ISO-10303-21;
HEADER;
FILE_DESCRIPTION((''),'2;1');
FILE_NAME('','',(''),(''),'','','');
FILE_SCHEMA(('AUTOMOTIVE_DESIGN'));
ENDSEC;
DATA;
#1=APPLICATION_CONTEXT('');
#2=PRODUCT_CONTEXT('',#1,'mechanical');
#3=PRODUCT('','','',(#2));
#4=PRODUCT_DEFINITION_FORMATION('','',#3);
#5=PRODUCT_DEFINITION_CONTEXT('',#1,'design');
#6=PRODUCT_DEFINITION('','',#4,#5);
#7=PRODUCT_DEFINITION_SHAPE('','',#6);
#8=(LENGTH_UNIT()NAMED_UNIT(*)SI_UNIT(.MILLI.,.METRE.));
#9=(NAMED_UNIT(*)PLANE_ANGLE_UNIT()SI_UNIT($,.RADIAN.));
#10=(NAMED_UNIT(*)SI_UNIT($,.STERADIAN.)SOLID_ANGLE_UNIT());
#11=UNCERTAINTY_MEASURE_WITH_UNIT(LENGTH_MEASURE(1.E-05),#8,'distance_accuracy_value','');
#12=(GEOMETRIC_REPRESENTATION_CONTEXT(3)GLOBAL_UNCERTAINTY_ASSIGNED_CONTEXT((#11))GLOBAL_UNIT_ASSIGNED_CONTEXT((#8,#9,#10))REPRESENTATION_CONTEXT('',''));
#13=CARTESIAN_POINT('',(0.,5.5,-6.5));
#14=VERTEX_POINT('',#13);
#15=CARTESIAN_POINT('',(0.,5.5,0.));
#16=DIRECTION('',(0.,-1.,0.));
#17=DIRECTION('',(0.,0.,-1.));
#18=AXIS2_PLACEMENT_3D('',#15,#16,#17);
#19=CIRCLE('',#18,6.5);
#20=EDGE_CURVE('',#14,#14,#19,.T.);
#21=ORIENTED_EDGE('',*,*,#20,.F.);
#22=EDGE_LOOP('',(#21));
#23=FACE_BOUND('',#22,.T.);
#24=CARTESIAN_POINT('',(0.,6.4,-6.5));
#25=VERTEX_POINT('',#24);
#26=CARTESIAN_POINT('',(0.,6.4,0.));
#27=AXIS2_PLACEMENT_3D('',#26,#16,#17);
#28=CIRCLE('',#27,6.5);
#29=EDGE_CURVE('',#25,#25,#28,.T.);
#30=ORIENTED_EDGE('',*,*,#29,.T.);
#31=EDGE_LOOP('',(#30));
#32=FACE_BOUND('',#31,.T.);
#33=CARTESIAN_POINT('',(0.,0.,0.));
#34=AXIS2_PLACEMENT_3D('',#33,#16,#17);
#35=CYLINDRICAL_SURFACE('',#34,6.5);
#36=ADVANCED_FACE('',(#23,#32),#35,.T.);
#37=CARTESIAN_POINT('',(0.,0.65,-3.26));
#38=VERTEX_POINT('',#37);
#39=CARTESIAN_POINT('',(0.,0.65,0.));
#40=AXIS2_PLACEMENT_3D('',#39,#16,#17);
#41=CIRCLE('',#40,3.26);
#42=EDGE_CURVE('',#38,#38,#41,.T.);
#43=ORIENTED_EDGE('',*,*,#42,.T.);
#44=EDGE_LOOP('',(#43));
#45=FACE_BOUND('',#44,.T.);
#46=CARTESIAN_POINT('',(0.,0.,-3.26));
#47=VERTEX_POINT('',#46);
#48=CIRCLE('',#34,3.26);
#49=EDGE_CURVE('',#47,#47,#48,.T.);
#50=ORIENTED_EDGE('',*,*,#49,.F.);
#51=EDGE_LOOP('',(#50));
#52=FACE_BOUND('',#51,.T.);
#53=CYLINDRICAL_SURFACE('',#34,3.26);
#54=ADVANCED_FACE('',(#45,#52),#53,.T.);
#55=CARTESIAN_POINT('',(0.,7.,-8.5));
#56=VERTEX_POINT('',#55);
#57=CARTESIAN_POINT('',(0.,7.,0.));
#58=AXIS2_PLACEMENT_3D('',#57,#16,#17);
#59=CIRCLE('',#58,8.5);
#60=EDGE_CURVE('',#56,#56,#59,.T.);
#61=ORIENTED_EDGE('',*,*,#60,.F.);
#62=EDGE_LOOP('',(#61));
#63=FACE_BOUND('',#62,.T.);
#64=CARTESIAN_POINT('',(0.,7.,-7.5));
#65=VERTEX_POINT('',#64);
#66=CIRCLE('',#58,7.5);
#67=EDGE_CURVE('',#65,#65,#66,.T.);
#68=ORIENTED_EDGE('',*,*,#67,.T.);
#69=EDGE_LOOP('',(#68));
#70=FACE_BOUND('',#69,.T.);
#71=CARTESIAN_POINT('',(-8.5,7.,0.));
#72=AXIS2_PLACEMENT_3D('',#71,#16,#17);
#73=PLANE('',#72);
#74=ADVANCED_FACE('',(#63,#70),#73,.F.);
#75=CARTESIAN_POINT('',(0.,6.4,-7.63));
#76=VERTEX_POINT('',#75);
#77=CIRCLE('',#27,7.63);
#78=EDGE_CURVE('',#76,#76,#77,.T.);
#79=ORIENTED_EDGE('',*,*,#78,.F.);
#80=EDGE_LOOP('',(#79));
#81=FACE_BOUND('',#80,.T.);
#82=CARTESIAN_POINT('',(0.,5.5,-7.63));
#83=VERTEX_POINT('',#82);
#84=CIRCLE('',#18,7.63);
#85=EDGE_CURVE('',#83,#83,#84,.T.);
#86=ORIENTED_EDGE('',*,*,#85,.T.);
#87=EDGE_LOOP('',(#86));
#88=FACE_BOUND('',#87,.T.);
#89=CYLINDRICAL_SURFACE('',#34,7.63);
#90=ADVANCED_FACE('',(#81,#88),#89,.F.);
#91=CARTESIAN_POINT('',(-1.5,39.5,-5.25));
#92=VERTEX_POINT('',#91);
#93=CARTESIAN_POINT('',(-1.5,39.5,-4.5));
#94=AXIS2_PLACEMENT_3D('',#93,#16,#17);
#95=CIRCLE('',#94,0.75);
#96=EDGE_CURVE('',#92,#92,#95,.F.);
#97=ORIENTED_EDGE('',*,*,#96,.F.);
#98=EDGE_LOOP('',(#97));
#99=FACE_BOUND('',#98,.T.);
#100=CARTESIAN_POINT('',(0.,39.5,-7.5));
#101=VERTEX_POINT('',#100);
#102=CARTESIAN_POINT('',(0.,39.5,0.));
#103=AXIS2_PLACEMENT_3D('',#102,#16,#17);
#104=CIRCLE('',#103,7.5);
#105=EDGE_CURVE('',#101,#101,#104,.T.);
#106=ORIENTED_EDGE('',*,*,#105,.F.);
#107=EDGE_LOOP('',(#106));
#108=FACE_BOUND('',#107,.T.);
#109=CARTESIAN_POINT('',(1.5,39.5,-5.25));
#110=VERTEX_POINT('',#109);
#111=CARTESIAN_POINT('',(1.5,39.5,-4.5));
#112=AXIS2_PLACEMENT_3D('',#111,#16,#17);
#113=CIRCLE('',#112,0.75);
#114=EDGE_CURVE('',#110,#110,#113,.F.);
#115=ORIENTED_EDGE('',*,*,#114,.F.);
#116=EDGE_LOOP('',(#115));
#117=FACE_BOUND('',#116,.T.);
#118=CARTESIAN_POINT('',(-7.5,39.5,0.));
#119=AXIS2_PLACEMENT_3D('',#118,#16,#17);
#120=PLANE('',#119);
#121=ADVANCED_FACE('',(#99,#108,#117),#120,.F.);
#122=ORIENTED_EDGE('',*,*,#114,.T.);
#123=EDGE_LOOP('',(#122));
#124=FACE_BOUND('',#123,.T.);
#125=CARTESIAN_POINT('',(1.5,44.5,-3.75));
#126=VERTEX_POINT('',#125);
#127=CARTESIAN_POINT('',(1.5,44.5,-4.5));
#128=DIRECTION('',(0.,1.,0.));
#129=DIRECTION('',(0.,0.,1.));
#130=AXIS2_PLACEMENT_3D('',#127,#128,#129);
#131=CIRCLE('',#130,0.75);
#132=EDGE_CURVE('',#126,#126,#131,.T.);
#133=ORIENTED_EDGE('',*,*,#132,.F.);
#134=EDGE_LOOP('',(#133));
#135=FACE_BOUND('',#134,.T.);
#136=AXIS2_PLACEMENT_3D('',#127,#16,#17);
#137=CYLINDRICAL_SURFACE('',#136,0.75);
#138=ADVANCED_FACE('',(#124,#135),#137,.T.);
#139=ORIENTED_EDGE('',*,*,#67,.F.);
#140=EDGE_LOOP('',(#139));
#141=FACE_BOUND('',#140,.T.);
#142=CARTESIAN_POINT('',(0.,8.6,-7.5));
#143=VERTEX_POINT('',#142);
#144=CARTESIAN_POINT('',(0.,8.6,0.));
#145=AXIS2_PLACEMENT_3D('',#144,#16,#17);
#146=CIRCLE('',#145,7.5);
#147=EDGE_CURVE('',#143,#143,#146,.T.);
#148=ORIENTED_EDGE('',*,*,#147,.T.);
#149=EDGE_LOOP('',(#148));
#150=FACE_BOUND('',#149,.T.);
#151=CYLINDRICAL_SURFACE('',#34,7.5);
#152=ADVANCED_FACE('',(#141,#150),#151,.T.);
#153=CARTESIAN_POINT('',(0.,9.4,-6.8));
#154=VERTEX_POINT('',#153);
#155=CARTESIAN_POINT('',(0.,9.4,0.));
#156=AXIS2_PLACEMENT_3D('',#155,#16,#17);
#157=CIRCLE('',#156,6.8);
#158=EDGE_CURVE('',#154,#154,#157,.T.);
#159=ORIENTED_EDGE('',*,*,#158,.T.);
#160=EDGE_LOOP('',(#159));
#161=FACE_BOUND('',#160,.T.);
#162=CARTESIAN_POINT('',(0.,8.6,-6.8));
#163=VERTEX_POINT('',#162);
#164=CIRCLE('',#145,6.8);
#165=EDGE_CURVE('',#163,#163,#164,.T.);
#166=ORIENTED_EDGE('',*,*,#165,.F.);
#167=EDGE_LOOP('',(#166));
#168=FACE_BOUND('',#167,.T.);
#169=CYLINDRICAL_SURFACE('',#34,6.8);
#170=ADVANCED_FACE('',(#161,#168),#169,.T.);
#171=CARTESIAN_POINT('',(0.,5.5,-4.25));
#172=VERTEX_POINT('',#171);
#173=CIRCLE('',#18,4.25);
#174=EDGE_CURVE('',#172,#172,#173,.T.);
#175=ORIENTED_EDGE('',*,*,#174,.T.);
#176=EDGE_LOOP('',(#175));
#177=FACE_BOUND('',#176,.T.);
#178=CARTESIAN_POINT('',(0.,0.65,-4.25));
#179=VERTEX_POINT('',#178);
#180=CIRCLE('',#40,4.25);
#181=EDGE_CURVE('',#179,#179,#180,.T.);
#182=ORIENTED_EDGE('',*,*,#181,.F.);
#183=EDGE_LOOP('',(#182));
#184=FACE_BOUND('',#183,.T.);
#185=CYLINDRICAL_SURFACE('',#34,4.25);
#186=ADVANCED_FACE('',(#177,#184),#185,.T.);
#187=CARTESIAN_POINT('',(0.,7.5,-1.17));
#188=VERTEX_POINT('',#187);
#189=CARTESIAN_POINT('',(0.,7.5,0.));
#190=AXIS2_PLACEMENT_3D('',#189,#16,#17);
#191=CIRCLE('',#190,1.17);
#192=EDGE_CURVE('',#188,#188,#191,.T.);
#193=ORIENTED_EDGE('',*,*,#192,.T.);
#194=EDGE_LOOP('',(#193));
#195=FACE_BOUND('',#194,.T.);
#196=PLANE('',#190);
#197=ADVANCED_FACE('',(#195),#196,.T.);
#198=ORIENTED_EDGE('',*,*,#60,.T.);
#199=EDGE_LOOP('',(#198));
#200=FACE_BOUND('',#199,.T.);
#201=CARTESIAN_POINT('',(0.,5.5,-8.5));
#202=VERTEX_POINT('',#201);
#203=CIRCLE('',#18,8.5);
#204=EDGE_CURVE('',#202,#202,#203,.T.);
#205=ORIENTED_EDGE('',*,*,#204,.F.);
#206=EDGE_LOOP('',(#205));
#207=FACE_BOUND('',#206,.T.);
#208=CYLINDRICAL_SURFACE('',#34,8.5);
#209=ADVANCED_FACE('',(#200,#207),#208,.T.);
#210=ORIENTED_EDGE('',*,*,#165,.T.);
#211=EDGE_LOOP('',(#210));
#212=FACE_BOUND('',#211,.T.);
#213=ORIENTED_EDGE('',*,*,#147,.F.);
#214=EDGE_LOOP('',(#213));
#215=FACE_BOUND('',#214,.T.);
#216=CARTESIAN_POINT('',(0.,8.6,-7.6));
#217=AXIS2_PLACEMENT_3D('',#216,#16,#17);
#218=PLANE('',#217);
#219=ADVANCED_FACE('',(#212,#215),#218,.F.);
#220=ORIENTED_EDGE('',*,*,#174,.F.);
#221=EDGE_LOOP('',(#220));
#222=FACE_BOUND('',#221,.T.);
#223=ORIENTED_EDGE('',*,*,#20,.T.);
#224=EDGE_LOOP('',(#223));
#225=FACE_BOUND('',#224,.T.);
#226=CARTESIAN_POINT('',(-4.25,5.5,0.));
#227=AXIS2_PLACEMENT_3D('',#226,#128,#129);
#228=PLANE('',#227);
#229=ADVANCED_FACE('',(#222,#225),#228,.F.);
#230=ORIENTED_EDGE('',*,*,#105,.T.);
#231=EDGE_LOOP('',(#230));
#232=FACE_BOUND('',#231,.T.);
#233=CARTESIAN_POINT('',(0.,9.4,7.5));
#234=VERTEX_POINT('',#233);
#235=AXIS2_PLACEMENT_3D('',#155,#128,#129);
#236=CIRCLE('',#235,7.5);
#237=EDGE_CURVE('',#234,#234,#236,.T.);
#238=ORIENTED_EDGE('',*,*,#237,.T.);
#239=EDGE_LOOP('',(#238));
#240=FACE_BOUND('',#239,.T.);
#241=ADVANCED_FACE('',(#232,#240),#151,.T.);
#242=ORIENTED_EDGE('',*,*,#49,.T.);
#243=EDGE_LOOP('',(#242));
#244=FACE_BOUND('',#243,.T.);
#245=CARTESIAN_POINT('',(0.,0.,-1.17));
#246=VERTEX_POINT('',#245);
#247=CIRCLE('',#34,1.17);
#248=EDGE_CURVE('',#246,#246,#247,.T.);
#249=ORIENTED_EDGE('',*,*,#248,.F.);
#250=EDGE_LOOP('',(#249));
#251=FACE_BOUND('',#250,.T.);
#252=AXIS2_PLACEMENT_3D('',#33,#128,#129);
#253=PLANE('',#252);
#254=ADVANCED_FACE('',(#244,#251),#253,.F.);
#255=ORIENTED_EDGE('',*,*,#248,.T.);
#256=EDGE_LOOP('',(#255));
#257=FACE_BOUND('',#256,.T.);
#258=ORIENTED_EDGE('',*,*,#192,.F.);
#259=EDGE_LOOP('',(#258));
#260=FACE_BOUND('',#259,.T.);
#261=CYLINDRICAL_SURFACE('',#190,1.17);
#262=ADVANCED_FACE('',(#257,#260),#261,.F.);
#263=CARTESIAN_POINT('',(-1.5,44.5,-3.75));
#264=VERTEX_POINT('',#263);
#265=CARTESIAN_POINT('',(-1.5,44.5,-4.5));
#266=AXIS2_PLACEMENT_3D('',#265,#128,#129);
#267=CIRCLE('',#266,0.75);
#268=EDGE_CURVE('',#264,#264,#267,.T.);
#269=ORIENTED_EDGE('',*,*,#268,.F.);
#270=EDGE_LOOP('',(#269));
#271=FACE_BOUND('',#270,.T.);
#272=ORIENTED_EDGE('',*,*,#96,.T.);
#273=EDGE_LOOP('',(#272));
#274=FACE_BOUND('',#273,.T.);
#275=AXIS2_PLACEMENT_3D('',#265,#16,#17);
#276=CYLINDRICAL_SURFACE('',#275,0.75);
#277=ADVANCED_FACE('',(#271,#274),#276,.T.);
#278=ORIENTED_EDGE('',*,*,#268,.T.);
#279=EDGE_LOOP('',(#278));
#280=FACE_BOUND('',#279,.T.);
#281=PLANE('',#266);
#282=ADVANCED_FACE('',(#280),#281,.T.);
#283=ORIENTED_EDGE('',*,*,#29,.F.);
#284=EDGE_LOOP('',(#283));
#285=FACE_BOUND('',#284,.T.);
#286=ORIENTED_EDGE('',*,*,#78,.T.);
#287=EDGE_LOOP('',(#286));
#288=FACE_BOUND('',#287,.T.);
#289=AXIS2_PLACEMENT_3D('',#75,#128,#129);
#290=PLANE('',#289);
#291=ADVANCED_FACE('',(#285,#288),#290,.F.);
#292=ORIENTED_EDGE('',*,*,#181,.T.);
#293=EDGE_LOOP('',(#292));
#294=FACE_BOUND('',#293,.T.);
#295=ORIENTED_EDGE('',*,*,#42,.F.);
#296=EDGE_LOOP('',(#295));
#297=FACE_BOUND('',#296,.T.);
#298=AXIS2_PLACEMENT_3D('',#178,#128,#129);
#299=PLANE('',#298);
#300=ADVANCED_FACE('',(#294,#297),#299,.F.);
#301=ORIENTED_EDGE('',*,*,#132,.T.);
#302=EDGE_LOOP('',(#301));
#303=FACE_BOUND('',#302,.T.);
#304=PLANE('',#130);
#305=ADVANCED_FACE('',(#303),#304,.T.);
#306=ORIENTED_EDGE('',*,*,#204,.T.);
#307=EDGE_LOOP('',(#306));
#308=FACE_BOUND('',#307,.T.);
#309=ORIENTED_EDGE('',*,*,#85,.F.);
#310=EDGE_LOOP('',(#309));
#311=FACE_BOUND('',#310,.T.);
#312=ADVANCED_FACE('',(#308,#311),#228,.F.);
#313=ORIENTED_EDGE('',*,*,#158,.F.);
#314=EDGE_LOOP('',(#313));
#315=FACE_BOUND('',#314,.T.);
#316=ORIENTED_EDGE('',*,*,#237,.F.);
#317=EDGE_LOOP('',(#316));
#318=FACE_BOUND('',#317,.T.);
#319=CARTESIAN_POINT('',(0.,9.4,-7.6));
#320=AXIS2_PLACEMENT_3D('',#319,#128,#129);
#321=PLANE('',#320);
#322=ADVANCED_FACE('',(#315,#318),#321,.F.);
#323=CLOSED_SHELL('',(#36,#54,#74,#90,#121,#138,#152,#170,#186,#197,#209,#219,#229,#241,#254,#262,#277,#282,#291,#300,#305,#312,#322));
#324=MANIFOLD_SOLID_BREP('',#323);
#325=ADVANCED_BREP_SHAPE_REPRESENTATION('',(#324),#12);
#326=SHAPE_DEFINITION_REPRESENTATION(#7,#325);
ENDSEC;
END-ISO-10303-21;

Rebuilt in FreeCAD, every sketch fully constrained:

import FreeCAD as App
import Part
import Sketcher

V = App.Vector
Q = App.Units.Quantity


def add_polygon(sketch, points):
    """Adds a closed chain of lines whose ends are joined by coincident constraints."""
    first, n = sketch.GeometryCount, len(points)
    for a, b in zip(points, points[1:] + points[:1]):
        sketch.addGeometry(Part.LineSegment(App.Vector(*a, 0), App.Vector(*b, 0)), False)
    for i in range(n):
        sketch.addConstraint(Sketcher.Constraint("Coincident", first + i, 2, first + (i + 1) % n, 1))

doc = App.newDocument("Part")
params = doc.addObject("Spreadsheet::Sheet", "Params")
for row, (alias, value) in enumerate([
    ("sketch1_width", "1 mm"),
    ("sketch1_width2", "7.5 mm"),
    ("sketch1_height", "39.5 mm"),
    ("sketch1_height2", "32.5 mm"),
    ("sketch1_height3", "1.5 mm"),
    ("revolution_angle", "360 deg"),
    ("sketch2_diameter", "1.5 mm"),
    ("pad1_length", "5 mm"),
    ("sketch3_width", "0.65 mm"),
    ("sketch3_height", "0.99 mm"),
    ("groove_angle", "360 deg"),
    ("sketch4_diameter", "2.34 mm"),
    ("pocket1_length", "7.5 mm"),
    ("sketch5_width", "0.9 mm"),
    ("sketch5_height", "1.13 mm"),
    ("groove2_angle", "360 deg"),
    ("sketch6_width", "0.8 mm"),
    ("groove3_angle", "360 deg"),
], start=1):
    params.set(f"A{row}", alias)
    params.set(f"B{row}", "=" + value)
    params.setAlias(f"B{row}", alias)

body = doc.addObject("PartDesign::Body", "Body")

sketch1 = body.newObject("Sketcher::SketchObject", "Sketch")
sketch1.AttachmentSupport = (doc.getObject("XY_Plane"), [""])
sketch1.MapMode = "FlatFace"
add_polygon(sketch1, [(-4.25, 0), (0, 0), (0, 39.5), (-7.5, 39.5), (-7.5, 7), (-8.5, 7), (-8.5, 5.5), (-4.25, 5.5)])
sketch1.addConstraint([
    Sketcher.Constraint("Horizontal", 0),
    Sketcher.Constraint("Vertical", 1),
    Sketcher.Constraint("Horizontal", 2),
    Sketcher.Constraint("Vertical", 3),
    Sketcher.Constraint("Horizontal", 4),
    Sketcher.Constraint("Vertical", 5),
    Sketcher.Constraint("Horizontal", 6),
    Sketcher.Constraint("Vertical", 7),
    Sketcher.Constraint("Coincident", 0, 2, -1, 1),
    Sketcher.Constraint("Equal", 0, 6),
    Sketcher.Constraint("DistanceX", 4, 2, 4, 1, Q("1 mm")),
    Sketcher.Constraint("DistanceX", 2, 2, 2, 1, Q("7.5 mm")),
    Sketcher.Constraint("DistanceY", 1, 1, 1, 2, Q("39.5 mm")),
    Sketcher.Constraint("DistanceY", 3, 2, 3, 1, Q("32.5 mm")),
    Sketcher.Constraint("DistanceY", 5, 2, 5, 1, Q("1.5 mm")),
])
sketch1.setExpression("Constraints[18]", "Params.sketch1_width")
sketch1.setExpression("Constraints[19]", "Params.sketch1_width2")
sketch1.setExpression("Constraints[20]", "Params.sketch1_height")
sketch1.setExpression("Constraints[21]", "Params.sketch1_height2")
sketch1.setExpression("Constraints[22]", "Params.sketch1_height3")
revolution = body.newObject("PartDesign::Revolution", "Revolution")
revolution.Profile = sketch1
revolution.ReferenceAxis = (sketch1, ["V_Axis"])
revolution.setExpression("Angle", "Params.revolution_angle")

sketch2 = body.newObject("Sketcher::SketchObject", "Sketch001")
sketch2.AttachmentSupport = (doc.getObject("XZ_Plane"), [""])
sketch2.MapMode = "FlatFace"
sketch2.AttachmentOffset = App.Placement(V(0, 0, -39.5), App.Rotation())
sketch2.addGeometry([
    Part.Circle(V(1.5, -4.5, 0), V(0, 0, 1), 0.75),
    Part.Circle(V(-1.5, -4.5, 0), V(0, 0, 1), 0.75),
], False)
sketch2.addConstraint([
    Sketcher.Constraint("Equal", 0, 1),
    Sketcher.Constraint("Symmetric", 0, 3, 1, 3, -2),
    Sketcher.Constraint("Diameter", 0, Q("1.5 mm")),
    Sketcher.Constraint("DistanceX", 1, 3, 0, 3, Q("3 mm")),
    Sketcher.Constraint("DistanceY", 0, 3, -1, 1, Q("4.5 mm")),
])
sketch2.setExpression("Constraints[2]", "Params.sketch2_diameter")
pad1 = body.newObject("PartDesign::Pad", "Pad")
pad1.Profile = sketch2
pad1.setExpression("Length", "Params.pad1_length")
pad1.Reversed = True

sketch3 = body.newObject("Sketcher::SketchObject", "Sketch002")
sketch3.AttachmentSupport = (doc.getObject("YZ_Plane"), [""])
sketch3.MapMode = "FlatFace"
add_polygon(sketch3, [(0.65, -3.26), (0, -3.26), (0, -4.25), (0.65, -4.25)])
sketch3.addConstraint([
    Sketcher.Constraint("Horizontal", 0),
    Sketcher.Constraint("Vertical", 1),
    Sketcher.Constraint("Horizontal", 2),
    Sketcher.Constraint("Vertical", 3),
    Sketcher.Constraint("PointOnObject", 0, 2, -2),
    Sketcher.Constraint("DistanceX", 0, 2, 0, 1, Q("0.65 mm")),
    Sketcher.Constraint("DistanceY", 1, 2, 1, 1, Q("0.99 mm")),
    Sketcher.Constraint("DistanceY", 0, 2, -1, 1, Q("3.26 mm")),
])
sketch3.setExpression("Constraints[9]", "Params.sketch3_width")
sketch3.setExpression("Constraints[10]", "Params.sketch3_height")
groove = body.newObject("PartDesign::Groove", "Groove")
groove.Profile = sketch3
groove.ReferenceAxis = (sketch3, ["H_Axis"])
groove.setExpression("Angle", "Params.groove_angle")

sketch4 = body.newObject("Sketcher::SketchObject", "Sketch003")
sketch4.AttachmentSupport = (doc.getObject("XZ_Plane"), [""])
sketch4.MapMode = "FlatFace"
sketch4.addGeometry(Part.Circle(V(0, 0, 0), V(0, 0, 1), 1.17), False)
sketch4.addConstraint([
    Sketcher.Constraint("Coincident", 0, 3, -1, 1),
    Sketcher.Constraint("Diameter", 0, Q("2.34 mm")),
])
sketch4.setExpression("Constraints[1]", "Params.sketch4_diameter")
pocket1 = body.newObject("PartDesign::Pocket", "Pocket")
pocket1.Profile = sketch4
pocket1.setExpression("Length", "Params.pocket1_length")

sketch5 = body.newObject("Sketcher::SketchObject", "Sketch004")
sketch5.AttachmentSupport = (doc.getObject("YZ_Plane"), [""])
sketch5.MapMode = "FlatFace"
add_polygon(sketch5, [(6.4, -6.5), (5.5, -6.5), (5.5, -7.63), (6.4, -7.63)])
sketch5.addConstraint([
    Sketcher.Constraint("Horizontal", 0),
    Sketcher.Constraint("Vertical", 1),
    Sketcher.Constraint("Horizontal", 2),
    Sketcher.Constraint("Vertical", 3),
    Sketcher.Constraint("DistanceX", 0, 2, 0, 1, Q("0.9 mm")),
    Sketcher.Constraint("DistanceY", 1, 2, 1, 1, Q("1.13 mm")),
    Sketcher.Constraint("DistanceX", -1, 1, 0, 2, Q("5.5 mm")),
    Sketcher.Constraint("DistanceY", 0, 2, -1, 1, Q("6.5 mm")),
])
sketch5.setExpression("Constraints[8]", "Params.sketch5_width")
sketch5.setExpression("Constraints[9]", "Params.sketch5_height")
groove2 = body.newObject("PartDesign::Groove", "Groove001")
groove2.Profile = sketch5
groove2.ReferenceAxis = (sketch5, ["H_Axis"])
groove2.setExpression("Angle", "Params.groove2_angle")

sketch6 = body.newObject("Sketcher::SketchObject", "Sketch005")
sketch6.AttachmentSupport = (doc.getObject("YZ_Plane"), [""])
sketch6.MapMode = "FlatFace"
add_polygon(sketch6, [(9.4, -6.8), (8.6, -6.8), (8.6, -7.6), (9.4, -7.6)])
sketch6.addConstraint([
    Sketcher.Constraint("Horizontal", 0),
    Sketcher.Constraint("Vertical", 1),
    Sketcher.Constraint("Horizontal", 2),
    Sketcher.Constraint("Vertical", 3),
    Sketcher.Constraint("Equal", 2, 1),
    Sketcher.Constraint("DistanceX", 0, 2, 0, 1, Q("0.8 mm")),
    Sketcher.Constraint("DistanceX", -1, 1, 0, 2, Q("8.6 mm")),
    Sketcher.Constraint("DistanceY", 0, 2, -1, 1, Q("6.8 mm")),
])
sketch6.setExpression("Constraints[9]", "Params.sketch6_width")
groove3 = body.newObject("PartDesign::Groove", "Groove002")
groove3.Profile = sketch6
groove3.ReferenceAxis = (sketch6, ["H_Axis"])
groove3.setExpression("Angle", "Params.groove3_angle")

doc.recompute()
